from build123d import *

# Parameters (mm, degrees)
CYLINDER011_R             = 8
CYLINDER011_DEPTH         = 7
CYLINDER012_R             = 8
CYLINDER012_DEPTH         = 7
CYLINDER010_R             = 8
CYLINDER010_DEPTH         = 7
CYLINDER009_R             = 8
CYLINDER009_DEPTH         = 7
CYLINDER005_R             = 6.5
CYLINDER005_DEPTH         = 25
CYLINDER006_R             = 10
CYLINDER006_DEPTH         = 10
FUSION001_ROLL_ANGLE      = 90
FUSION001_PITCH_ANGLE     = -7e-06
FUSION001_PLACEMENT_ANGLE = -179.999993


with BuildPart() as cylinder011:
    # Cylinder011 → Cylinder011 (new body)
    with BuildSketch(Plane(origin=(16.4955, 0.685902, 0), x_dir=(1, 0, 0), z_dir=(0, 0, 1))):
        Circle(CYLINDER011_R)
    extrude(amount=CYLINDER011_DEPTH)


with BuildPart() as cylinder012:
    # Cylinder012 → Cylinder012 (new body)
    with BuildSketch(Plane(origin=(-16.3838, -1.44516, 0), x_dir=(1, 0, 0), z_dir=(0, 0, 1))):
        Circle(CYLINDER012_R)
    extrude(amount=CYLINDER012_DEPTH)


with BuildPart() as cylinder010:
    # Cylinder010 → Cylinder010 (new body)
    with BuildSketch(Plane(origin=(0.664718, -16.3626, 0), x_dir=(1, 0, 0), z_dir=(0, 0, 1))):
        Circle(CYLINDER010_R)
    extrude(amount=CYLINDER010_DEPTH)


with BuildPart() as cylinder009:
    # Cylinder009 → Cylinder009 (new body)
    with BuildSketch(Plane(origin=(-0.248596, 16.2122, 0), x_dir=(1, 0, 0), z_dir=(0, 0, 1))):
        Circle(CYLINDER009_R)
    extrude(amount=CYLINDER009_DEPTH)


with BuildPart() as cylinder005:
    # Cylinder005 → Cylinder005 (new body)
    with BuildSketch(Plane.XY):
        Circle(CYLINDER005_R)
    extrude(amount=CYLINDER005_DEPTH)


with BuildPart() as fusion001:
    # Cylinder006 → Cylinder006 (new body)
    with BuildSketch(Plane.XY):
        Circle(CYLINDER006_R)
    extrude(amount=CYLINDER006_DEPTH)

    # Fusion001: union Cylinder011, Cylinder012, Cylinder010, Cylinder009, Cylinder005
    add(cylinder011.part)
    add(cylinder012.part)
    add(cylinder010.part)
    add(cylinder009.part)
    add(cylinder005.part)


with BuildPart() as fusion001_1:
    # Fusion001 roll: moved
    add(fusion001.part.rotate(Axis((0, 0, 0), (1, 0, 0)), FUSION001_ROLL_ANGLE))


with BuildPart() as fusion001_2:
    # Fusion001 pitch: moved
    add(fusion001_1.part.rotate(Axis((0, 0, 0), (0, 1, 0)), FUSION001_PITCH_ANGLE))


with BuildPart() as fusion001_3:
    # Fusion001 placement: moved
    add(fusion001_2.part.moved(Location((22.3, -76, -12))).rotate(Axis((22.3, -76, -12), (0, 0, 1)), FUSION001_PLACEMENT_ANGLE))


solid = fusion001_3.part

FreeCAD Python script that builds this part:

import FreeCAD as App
import Part
import Sketcher
from FreeCAD import Vector
Q = App.Units.Quantity

doc = App.newDocument("Part")
params = doc.addObject("Spreadsheet::Sheet", "Params")
for row, (alias, value) in enumerate([
    ("sketch1_diameter", "16 mm"),
    ("pad1_length", "7 mm"),
    ("sketch2_diameter", "16 mm"),
    ("pad2_length", "7 mm"),
    ("sketch3_diameter", "16 mm"),
    ("pad3_length", "7 mm"),
    ("sketch4_diameter", "16 mm"),
    ("pad4_length", "7 mm"),
    ("sketch5_diameter", "13 mm"),
    ("pad5_length", "25 mm"),
    ("sketch6_diameter", "20 mm"),
    ("pad6_length", "10 mm"),
], start=1):
    params.set(f"A{row}", alias)
    params.set(f"B{row}", "=" + value)
    params.setAlias(f"B{row}", alias)

body = doc.addObject("PartDesign::Body", "Body")

# Sketch on XY plane
sketch1 = doc.addObject("Sketcher::SketchObject", "Sketch")
body.addObject(sketch1)
sketch1.AttachmentSupport = (doc.XY_Plane, [""])
sketch1.MapMode = "FlatFace"
sketch1.addGeometry(Part.Circle(Vector(16, 1, 0), Vector(0, 0, 1), 8), False)
sketch1.addConstraint(Sketcher.Constraint("Diameter", 0, Q("16 mm")))
sketch1.addConstraint(Sketcher.Constraint("DistanceX", -1, 1, 0, 3, Q("16.4955 mm")))
sketch1.addConstraint(Sketcher.Constraint("DistanceY", -1, 1, 0, 3, Q("0.685902 mm")))
sketch1.setExpression("Constraints[0]", "Params.sketch1_diameter")
pad1 = doc.addObject("PartDesign::Pad", "Pad")
body.addObject(pad1)
pad1.Profile = sketch1
pad1.setExpression("Length", "Params.pad1_length")
body2 = doc.addObject("PartDesign::Body", "Body001")

# Sketch on XY plane
sketch2 = doc.addObject("Sketcher::SketchObject", "Sketch001")
body2.addObject(sketch2)
sketch2.AttachmentSupport = (doc.getObject("XY_Plane001"), [""])
sketch2.MapMode = "FlatFace"
sketch2.addGeometry(Part.Circle(Vector(-16, -1, 0), Vector(0, 0, 1), 8), False)
sketch2.addConstraint(Sketcher.Constraint("Diameter", 0, Q("16 mm")))
sketch2.addConstraint(Sketcher.Constraint("DistanceX", 0, 3, -1, 1, Q("16.3838 mm")))
sketch2.addConstraint(Sketcher.Constraint("DistanceY", 0, 3, -1, 1, Q("1.44516 mm")))
sketch2.setExpression("Constraints[0]", "Params.sketch2_diameter")
pad2 = doc.addObject("PartDesign::Pad", "Pad001")
body2.addObject(pad2)
pad2.Profile = sketch2
pad2.setExpression("Length", "Params.pad2_length")
body3 = doc.addObject("PartDesign::Body", "Body002")

# Sketch on XY plane
sketch3 = doc.addObject("Sketcher::SketchObject", "Sketch002")
body3.addObject(sketch3)
sketch3.AttachmentSupport = (doc.getObject("XY_Plane002"), [""])
sketch3.MapMode = "FlatFace"
sketch3.addGeometry(Part.Circle(Vector(1, -16, 0), Vector(0, 0, 1), 8), False)
sketch3.addConstraint(Sketcher.Constraint("Diameter", 0, Q("16 mm")))
sketch3.addConstraint(Sketcher.Constraint("DistanceY", 0, 3, -1, 1, Q("16.3626 mm")))
sketch3.addConstraint(Sketcher.Constraint("DistanceX", -1, 1, 0, 3, Q("0.664718 mm")))
sketch3.setExpression("Constraints[0]", "Params.sketch3_diameter")
pad3 = doc.addObject("PartDesign::Pad", "Pad002")
body3.addObject(pad3)
pad3.Profile = sketch3
pad3.setExpression("Length", "Params.pad3_length")
body4 = doc.addObject("PartDesign::Body", "Body003")

# Sketch on XY plane
sketch4 = doc.addObject("Sketcher::SketchObject", "Sketch003")
body4.addObject(sketch4)
sketch4.AttachmentSupport = (doc.getObject("XY_Plane003"), [""])
sketch4.MapMode = "FlatFace"
sketch4.addGeometry(Part.Circle(Vector(0, 16, 0), Vector(0, 0, 1), 8), False)
sketch4.addConstraint(Sketcher.Constraint("Diameter", 0, Q("16 mm")))
sketch4.addConstraint(Sketcher.Constraint("DistanceY", -1, 1, 0, 3, Q("16.2122 mm")))
sketch4.addConstraint(Sketcher.Constraint("DistanceX", 0, 3, -1, 1, Q("0.248596 mm")))
sketch4.setExpression("Constraints[0]", "Params.sketch4_diameter")
pad4 = doc.addObject("PartDesign::Pad", "Pad003")
body4.addObject(pad4)
pad4.Profile = sketch4
pad4.setExpression("Length", "Params.pad4_length")
body5 = doc.addObject("PartDesign::Body", "Body004")

# Sketch on XY plane
sketch5 = doc.addObject("Sketcher::SketchObject", "Sketch004")
body5.addObject(sketch5)
sketch5.AttachmentSupport = (doc.getObject("XY_Plane004"), [""])
sketch5.MapMode = "FlatFace"
sketch5.addGeometry(Part.Circle(Vector(0, 0, 0), Vector(0, 0, 1), 6), False)
sketch5.addConstraint(Sketcher.Constraint("Coincident", 0, 3, -1, 1))
sketch5.addConstraint(Sketcher.Constraint("Diameter", 0, Q("13 mm")))
sketch5.setExpression("Constraints[1]", "Params.sketch5_diameter")
pad5 = doc.addObject("PartDesign::Pad", "Pad004")
body5.addObject(pad5)
pad5.Profile = sketch5
pad5.setExpression("Length", "Params.pad5_length")
body6 = doc.addObject("PartDesign::Body", "Body005")

# Sketch on XY plane
sketch6 = doc.addObject("Sketcher::SketchObject", "Sketch005")
body6.addObject(sketch6)
sketch6.AttachmentSupport = (doc.getObject("XY_Plane005"), [""])
sketch6.MapMode = "FlatFace"
sketch6.addGeometry(Part.Circle(Vector(0, 0, 0), Vector(0, 0, 1), 10), False)
sketch6.addConstraint(Sketcher.Constraint("Coincident", 0, 3, -1, 1))
sketch6.addConstraint(Sketcher.Constraint("Diameter", 0, Q("20 mm")))
sketch6.setExpression("Constraints[1]", "Params.sketch6_diameter")
pad6 = doc.addObject("PartDesign::Pad", "Pad005")
body6.addObject(pad6)
pad6.Profile = sketch6
pad6.setExpression("Length", "Params.pad6_length")
doc.recompute()

boolean = doc.addObject("PartDesign::Boolean", "Boolean")
body6.addObject(boolean)
boolean.Type = "Fuse"
boolean.addObjects([body])
doc.recompute()

boolean2 = doc.addObject("PartDesign::Boolean", "Boolean001")
body6.addObject(boolean2)
boolean2.Type = "Fuse"
boolean2.addObjects([body2])
doc.recompute()

boolean3 = doc.addObject("PartDesign::Boolean", "Boolean002")
body6.addObject(boolean3)
boolean3.Type = "Fuse"
boolean3.addObjects([body3])
doc.recompute()

boolean4 = doc.addObject("PartDesign::Boolean", "Boolean003")
body6.addObject(boolean4)
boolean4.Type = "Fuse"
boolean4.addObjects([body4])
doc.recompute()

boolean5 = doc.addObject("PartDesign::Boolean", "Boolean004")
body6.addObject(boolean5)
boolean5.Type = "Fuse"
boolean5.addObjects([body5])
body7 = doc.addObject("PartDesign::Body", "Body006")
doc.recompute()

body6.Placement = App.Placement(Vector(0, 0, 0), App.Rotation(Vector(1, 0, 0), 90))
boolean6 = doc.addObject("PartDesign::Boolean", "Boolean005")
body7.addObject(boolean6)
boolean6.Type = "Fuse"
boolean6.addObjects([body6])
body8 = doc.addObject("PartDesign::Body", "Body007")
doc.recompute()

body7.Placement = App.Placement(Vector(0, 0, 0), App.Rotation(Vector(0, 1, 0), 359.999993))
boolean7 = doc.addObject("PartDesign::Boolean", "Boolean006")
body8.addObject(boolean7)
boolean7.Type = "Fuse"
boolean7.addObjects([body7])
body9 = doc.addObject("PartDesign::Body", "Body008")
doc.recompute()

body8.Placement = App.Placement(Vector(22.3, -76, -12), App.Rotation(Vector(0, 0, 1), 180.000007))
boolean8 = doc.addObject("PartDesign::Boolean", "Boolean007")
body9.addObject(boolean8)
boolean8.Type = "Fuse"
boolean8.addObjects([body8])

doc.recompute()
